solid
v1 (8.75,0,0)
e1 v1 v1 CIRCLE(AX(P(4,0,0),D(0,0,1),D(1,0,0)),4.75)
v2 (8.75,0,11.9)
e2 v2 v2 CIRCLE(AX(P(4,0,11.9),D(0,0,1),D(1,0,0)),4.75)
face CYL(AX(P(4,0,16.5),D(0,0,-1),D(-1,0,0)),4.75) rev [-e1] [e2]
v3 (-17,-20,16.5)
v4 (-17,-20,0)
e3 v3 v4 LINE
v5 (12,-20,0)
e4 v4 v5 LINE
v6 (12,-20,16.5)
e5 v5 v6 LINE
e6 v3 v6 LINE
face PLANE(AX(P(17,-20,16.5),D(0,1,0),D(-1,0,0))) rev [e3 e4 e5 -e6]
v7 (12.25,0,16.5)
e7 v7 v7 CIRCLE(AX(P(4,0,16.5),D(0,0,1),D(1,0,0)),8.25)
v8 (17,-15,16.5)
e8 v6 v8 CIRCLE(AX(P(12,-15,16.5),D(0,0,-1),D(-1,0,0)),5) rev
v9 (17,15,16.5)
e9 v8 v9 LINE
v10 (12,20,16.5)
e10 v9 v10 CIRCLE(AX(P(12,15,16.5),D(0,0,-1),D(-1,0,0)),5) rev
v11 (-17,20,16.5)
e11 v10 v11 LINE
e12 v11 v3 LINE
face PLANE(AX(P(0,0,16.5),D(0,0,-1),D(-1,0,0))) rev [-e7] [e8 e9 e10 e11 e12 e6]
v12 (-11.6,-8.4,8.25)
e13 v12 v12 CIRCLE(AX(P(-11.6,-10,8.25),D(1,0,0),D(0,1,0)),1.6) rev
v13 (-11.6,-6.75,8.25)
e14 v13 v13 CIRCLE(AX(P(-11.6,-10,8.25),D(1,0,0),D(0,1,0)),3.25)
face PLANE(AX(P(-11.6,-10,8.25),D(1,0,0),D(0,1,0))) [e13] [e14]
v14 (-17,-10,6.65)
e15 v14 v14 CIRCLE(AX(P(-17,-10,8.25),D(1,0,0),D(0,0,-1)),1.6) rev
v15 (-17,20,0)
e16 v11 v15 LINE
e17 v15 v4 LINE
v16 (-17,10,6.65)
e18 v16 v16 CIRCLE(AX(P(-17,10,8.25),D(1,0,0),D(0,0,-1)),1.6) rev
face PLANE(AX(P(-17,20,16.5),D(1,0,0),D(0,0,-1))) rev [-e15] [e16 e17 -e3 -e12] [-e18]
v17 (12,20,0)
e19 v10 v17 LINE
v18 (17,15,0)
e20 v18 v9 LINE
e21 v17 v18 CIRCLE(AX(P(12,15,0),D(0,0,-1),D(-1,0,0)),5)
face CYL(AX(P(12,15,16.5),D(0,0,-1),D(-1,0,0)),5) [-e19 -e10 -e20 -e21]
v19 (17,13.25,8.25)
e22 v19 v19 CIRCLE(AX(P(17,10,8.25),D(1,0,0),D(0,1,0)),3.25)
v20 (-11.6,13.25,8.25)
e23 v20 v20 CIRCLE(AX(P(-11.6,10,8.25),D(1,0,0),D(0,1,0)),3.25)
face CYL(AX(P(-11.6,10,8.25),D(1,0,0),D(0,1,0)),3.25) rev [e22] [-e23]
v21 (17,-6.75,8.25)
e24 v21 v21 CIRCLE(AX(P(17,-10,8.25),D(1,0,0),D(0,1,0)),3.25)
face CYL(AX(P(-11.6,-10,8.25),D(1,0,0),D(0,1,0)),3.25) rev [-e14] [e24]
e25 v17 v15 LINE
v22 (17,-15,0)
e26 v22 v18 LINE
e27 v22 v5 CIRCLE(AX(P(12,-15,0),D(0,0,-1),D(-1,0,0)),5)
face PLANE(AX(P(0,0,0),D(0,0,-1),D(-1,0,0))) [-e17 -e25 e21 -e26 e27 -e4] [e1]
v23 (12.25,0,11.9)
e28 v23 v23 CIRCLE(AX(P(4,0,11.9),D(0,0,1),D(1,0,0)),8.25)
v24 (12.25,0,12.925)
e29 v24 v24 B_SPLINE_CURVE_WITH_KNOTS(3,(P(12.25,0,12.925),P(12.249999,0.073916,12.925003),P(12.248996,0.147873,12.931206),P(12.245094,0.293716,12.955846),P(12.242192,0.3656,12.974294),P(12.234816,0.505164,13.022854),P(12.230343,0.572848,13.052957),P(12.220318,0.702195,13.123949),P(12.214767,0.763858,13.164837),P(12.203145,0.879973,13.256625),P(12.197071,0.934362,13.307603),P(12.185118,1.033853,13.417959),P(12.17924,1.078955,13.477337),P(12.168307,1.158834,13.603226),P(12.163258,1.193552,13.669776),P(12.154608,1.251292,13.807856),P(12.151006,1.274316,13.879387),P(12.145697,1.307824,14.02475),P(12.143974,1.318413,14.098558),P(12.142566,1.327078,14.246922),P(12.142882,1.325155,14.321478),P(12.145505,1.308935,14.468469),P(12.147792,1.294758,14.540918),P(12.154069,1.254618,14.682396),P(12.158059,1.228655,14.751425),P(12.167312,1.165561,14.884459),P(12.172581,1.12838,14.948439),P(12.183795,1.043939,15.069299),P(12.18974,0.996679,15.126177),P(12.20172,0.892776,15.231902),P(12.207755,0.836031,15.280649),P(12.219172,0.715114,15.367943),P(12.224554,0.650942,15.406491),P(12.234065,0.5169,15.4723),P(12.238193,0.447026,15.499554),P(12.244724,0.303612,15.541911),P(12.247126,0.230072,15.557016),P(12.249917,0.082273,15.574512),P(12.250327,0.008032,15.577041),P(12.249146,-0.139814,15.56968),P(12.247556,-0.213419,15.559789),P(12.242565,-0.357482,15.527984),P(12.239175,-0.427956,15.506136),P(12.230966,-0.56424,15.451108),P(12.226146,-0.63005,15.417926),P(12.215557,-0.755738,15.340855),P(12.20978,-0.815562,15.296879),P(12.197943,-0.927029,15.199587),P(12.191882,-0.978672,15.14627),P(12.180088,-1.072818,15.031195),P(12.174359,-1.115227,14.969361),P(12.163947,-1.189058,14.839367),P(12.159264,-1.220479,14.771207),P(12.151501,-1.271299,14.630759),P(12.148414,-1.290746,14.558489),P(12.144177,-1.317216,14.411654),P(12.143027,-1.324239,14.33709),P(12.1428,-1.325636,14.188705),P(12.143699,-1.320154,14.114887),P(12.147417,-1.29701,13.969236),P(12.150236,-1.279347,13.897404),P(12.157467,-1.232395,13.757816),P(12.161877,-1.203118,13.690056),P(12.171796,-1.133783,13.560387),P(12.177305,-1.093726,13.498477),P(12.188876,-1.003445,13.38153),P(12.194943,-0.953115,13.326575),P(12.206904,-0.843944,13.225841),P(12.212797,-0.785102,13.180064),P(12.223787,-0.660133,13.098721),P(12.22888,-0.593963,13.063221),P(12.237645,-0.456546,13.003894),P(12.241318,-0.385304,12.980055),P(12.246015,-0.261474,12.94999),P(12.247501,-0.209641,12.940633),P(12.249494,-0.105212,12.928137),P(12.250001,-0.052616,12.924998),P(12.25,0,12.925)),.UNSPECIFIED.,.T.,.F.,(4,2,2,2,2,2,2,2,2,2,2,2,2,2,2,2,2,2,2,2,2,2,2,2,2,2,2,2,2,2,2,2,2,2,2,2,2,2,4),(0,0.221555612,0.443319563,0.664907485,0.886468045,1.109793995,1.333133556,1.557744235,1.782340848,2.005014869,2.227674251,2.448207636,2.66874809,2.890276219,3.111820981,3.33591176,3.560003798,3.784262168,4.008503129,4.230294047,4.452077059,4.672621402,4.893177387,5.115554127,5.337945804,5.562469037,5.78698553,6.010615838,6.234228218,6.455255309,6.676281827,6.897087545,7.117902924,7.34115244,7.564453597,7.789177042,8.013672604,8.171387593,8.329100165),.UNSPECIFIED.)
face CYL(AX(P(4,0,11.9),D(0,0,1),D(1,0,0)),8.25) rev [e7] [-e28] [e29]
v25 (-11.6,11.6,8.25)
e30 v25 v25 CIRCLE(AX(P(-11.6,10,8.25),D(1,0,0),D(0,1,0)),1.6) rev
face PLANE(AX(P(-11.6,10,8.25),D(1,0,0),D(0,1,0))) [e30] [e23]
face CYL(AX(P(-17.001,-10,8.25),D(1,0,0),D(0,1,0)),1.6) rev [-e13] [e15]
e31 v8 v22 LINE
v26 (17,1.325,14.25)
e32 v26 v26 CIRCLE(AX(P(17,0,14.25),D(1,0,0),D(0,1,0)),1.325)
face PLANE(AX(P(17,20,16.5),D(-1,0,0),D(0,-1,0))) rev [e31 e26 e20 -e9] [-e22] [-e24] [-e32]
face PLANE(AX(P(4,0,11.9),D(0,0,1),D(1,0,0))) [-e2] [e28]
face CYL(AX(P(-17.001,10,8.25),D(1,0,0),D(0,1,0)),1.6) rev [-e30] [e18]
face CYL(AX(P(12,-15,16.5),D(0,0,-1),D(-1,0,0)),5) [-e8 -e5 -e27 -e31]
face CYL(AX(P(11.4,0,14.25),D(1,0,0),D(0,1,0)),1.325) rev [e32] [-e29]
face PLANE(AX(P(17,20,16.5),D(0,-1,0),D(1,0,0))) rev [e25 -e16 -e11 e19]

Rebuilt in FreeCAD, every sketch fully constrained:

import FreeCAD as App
import Part
import Sketcher

V = App.Vector
Q = App.Units.Quantity


def edges_at(feature, points):
    """Names of the edges that pass closest to the given points."""
    edges = feature.Shape.Edges
    near = lambda p: min(range(len(edges)), key=lambda i: edges[i].distToShape(Part.Vertex(*p))[0])
    return sorted({f"Edge{near(p) + 1}" for p in points})


def add_polygon(sketch, points):
    """Adds a closed chain of lines whose ends are joined by coincident constraints."""
    first, n = sketch.GeometryCount, len(points)
    for a, b in zip(points, points[1:] + points[:1]):
        sketch.addGeometry(Part.LineSegment(App.Vector(*a, 0), App.Vector(*b, 0)), False)
    for i in range(n):
        sketch.addConstraint(Sketcher.Constraint("Coincident", first + i, 2, first + (i + 1) % n, 1))

doc = App.newDocument("Part")
body = doc.addObject("PartDesign::Body", "Body")

# Sketch on XY plane
sketch1 = body.newObject("Sketcher::SketchObject", "Sketch")
sketch1.AttachmentSupport = (doc.getObject("XY_Plane"), [""])
sketch1.MapMode = "FlatFace"
add_polygon(sketch1, [(-17, 20), (-17, -20), (17, -20), (17, 20)])  # lines 0-3
sketch1.addGeometry(Part.Circle(V(4, 0, 0), V(0, 0, 1), 4.75), False)  # 4
sketch1.addConstraint(Sketcher.Constraint("Vertical", 0))
sketch1.addConstraint(Sketcher.Constraint("Horizontal", 1))
sketch1.addConstraint(Sketcher.Constraint("Vertical", 2))
sketch1.addConstraint(Sketcher.Constraint("Horizontal", 3))
sketch1.addConstraint(Sketcher.Constraint("Symmetric", 0, 2, 2, 2, -1, 1))
sketch1.addConstraint(Sketcher.Constraint("PointOnObject", 4, 3, -1))
sketch1.addConstraint(Sketcher.Constraint("Diameter", 4, Q("9.5 mm")))
sketch1.addConstraint(Sketcher.Constraint("DistanceX", 1, 1, 1, 2, Q("34 mm")))
sketch1.addConstraint(Sketcher.Constraint("DistanceY", 0, 2, 0, 1, Q("40 mm")))
sketch1.addConstraint(Sketcher.Constraint("DistanceX", -1, 1, 4, 3, Q("4 mm")))
pad1 = body.newObject("PartDesign::Pad", "Pad")
pad1.Profile = sketch1
pad1.Length = 16.5

# Sketch on XY plane
sketch2 = body.newObject("Sketcher::SketchObject", "Sketch001")
sketch2.AttachmentSupport = (doc.getObject("XY_Plane"), [""])
sketch2.MapMode = "FlatFace"
sketch2.AttachmentOffset = App.Placement(V(0, 0, 16.5), App.Rotation())
sketch2.addGeometry(Part.Circle(V(4, 0, 0), V(0, 0, 1), 8.25), False)
sketch2.addConstraint(Sketcher.Constraint("PointOnObject", 0, 3, -1))
sketch2.addConstraint(Sketcher.Constraint("Diameter", 0, Q("16.5 mm")))
sketch2.addConstraint(Sketcher.Constraint("DistanceX", -1, 1, 0, 3, Q("4 mm")))
pocket1 = body.newObject("PartDesign::Pocket", "Pocket")
pocket1.Profile = sketch2
pocket1.Length = 4.6

# Sketch on YZ plane
sketch3 = body.newObject("Sketcher::SketchObject", "Sketch002")
sketch3.AttachmentSupport = (doc.getObject("YZ_Plane"), [""])
sketch3.MapMode = "FlatFace"
sketch3.AttachmentOffset = App.Placement(V(0, 0, 17), App.Rotation())
sketch3.addGeometry(Part.Circle(V(0, 14.25, 0), V(0, 0, 1), 1.325), False)
sketch3.addConstraint(Sketcher.Constraint("PointOnObject", 0, 3, -2))
sketch3.addConstraint(Sketcher.Constraint("Diameter", 0, Q("2.65 mm")))
sketch3.addConstraint(Sketcher.Constraint("DistanceY", -1, 1, 0, 3, Q("14.25 mm")))
pocket2 = body.newObject("PartDesign::Pocket", "Pocket001")
pocket2.Profile = sketch3
pocket2.Length = 5.6

# Sketch on YZ plane
sketch4 = body.newObject("Sketcher::SketchObject", "Sketch003")
sketch4.AttachmentSupport = (doc.getObject("YZ_Plane"), [""])
sketch4.MapMode = "FlatFace"
sketch4.AttachmentOffset = App.Placement(V(0, 0, 17), App.Rotation())
sketch4.addGeometry(Part.Circle(V(-10, 8.25, 0), V(0, 0, 1), 1.6), False)
sketch4.addConstraint(Sketcher.Constraint("Diameter", 0, Q("3.2 mm")))
sketch4.addConstraint(Sketcher.Constraint("DistanceX", 0, 3, -1, 1, Q("10 mm")))
sketch4.addConstraint(Sketcher.Constraint("DistanceY", -1, 1, 0, 3, Q("8.25 mm")))
pocket3 = body.newObject("PartDesign::Pocket", "Pocket002")
pocket3.Profile = sketch4
pocket3.Type = "UpToFirst"

# Sketch on YZ plane
sketch5 = body.newObject("Sketcher::SketchObject", "Sketch004")
sketch5.AttachmentSupport = (doc.getObject("YZ_Plane"), [""])
sketch5.MapMode = "FlatFace"
sketch5.AttachmentOffset = App.Placement(V(0, 0, 17), App.Rotation())
sketch5.addGeometry(Part.Circle(V(10, 8.25, 0), V(0, 0, 1), 1.6), False)
sketch5.addConstraint(Sketcher.Constraint("Diameter", 0, Q("3.2 mm")))
sketch5.addConstraint(Sketcher.Constraint("DistanceX", -1, 1, 0, 3, Q("10 mm")))
sketch5.addConstraint(Sketcher.Constraint("DistanceY", -1, 1, 0, 3, Q("8.25 mm")))
pocket4 = body.newObject("PartDesign::Pocket", "Pocket003")
pocket4.Profile = sketch5
pocket4.Type = "UpToFirst"

# Sketch on YZ plane
sketch6 = body.newObject("Sketcher::SketchObject", "Sketch005")
sketch6.AttachmentSupport = (doc.getObject("YZ_Plane"), [""])
sketch6.MapMode = "FlatFace"
sketch6.AttachmentOffset = App.Placement(V(0, 0, 17), App.Rotation())
sketch6.addGeometry(Part.Circle(V(-10, 8.25, 0), V(0, 0, 1), 3.25), False)
sketch6.addGeometry(Part.Circle(V(10, 8.25, 0), V(0, 0, 1), 3.25), False)
sketch6.addConstraint(Sketcher.Constraint("Equal", 0, 1))
sketch6.addConstraint(Sketcher.Constraint("Symmetric", 0, 3, 1, 3, -2))
sketch6.addConstraint(Sketcher.Constraint("Diameter", 0, Q("6.5 mm")))
sketch6.addConstraint(Sketcher.Constraint("DistanceX", 0, 3, -1, 1, Q("10 mm")))
sketch6.addConstraint(Sketcher.Constraint("DistanceY", -1, 1, 0, 3, Q("8.25 mm")))
pocket5 = body.newObject("PartDesign::Pocket", "Pocket004")
pocket5.Profile = sketch6
pocket5.Length = 28.6
doc.recompute()

fillet = body.newObject("PartDesign::Fillet", "Fillet")
fillet.Base = (pocket5, edges_at(pocket5, [(17, 20, 8.25), (17, -20, 8.25)]))
fillet.Radius = 5

doc.recompute()
